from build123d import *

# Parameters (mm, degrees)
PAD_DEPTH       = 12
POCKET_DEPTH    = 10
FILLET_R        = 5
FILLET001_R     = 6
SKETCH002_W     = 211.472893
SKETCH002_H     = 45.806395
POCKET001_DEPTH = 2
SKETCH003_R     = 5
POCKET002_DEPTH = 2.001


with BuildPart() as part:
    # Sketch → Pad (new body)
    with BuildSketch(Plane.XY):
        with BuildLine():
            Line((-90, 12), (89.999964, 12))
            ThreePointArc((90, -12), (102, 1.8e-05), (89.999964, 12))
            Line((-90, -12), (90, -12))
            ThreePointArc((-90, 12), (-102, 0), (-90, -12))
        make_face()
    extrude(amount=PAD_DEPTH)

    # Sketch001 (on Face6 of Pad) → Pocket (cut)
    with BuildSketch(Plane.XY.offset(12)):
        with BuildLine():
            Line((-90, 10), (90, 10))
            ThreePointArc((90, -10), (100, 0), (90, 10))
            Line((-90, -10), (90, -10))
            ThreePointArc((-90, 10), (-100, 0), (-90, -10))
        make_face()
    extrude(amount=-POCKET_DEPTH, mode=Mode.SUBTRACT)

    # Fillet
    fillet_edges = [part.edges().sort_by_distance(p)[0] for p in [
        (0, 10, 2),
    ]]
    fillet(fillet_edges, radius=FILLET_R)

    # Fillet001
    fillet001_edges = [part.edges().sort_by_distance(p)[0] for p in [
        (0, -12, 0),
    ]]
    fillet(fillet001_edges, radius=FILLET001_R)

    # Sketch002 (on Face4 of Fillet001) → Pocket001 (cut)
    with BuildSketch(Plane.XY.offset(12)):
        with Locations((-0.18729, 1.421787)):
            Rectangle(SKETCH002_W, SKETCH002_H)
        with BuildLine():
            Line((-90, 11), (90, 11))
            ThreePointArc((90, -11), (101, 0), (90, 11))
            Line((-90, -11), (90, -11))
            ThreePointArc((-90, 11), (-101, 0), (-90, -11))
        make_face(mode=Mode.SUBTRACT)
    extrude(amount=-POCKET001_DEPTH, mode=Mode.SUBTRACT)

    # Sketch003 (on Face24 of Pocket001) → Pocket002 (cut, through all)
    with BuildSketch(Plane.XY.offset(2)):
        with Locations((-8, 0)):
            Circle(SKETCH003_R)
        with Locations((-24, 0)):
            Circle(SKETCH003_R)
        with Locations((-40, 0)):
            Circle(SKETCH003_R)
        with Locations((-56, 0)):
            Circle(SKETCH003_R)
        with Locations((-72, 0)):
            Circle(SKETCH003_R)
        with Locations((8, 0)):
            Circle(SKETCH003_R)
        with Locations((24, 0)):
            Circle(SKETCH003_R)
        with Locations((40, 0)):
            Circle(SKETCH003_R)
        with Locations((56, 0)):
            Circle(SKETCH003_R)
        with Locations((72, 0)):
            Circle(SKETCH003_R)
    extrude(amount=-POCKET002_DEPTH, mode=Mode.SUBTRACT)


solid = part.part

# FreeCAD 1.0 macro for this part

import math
import FreeCAD as App
import Part
import Sketcher
from FreeCAD import Vector


def edges_at(feature, points):
    """Names of the edges that pass closest to the given points."""
    edges = feature.Shape.Edges
    near = lambda p: min(range(len(edges)), key=lambda i: edges[i].distToShape(Part.Vertex(*p))[0])
    return sorted({f"Edge{near(p) + 1}" for p in points})


def add_polygon(sketch, points):
    """Adds a closed chain of lines whose ends are joined by coincident constraints."""
    first, n = sketch.GeometryCount, len(points)
    for a, b in zip(points, points[1:] + points[:1]):
        sketch.addGeometry(Part.LineSegment(App.Vector(*a, 0), App.Vector(*b, 0)), False)
    for i in range(n):
        sketch.addConstraint(Sketcher.Constraint("Coincident", first + i, 2, first + (i + 1) % n, 1))

doc = App.newDocument("Part")
body = doc.addObject("PartDesign::Body", "Body")

# Sketch on XY plane
sketch1 = body.newObject("Sketcher::SketchObject", "Sketch")
sketch1.AttachmentSupport = (doc.getObject("XY_Plane"), [""])
sketch1.MapMode = "FlatFace"
sketch1.addGeometry(Part.LineSegment(Vector(90, 12, 0), Vector(-90, 12, 0)), False)
sketch1.addGeometry(Part.ArcOfCircle(Part.Circle(Vector(-90, 0, 0), Vector(0, 0, 1), 12), math.radians(90), math.radians(270)), False)
sketch1.addGeometry(Part.LineSegment(Vector(-90, -12, 0), Vector(90, -12, 0)), False)
sketch1.addGeometry(Part.ArcOfCircle(Part.Circle(Vector(90, 0, 0), Vector(0, 0, 1), 12), math.radians(-90), math.radians(90)), False)
sketch1.addConstraint(Sketcher.Constraint("Tangent", 0, 2, 1, 1))
sketch1.addConstraint(Sketcher.Constraint("Tangent", 1, 2, 2, 1))
sketch1.addConstraint(Sketcher.Constraint("Tangent", 2, 2, 3, 1))
sketch1.addConstraint(Sketcher.Constraint("Coincident", 3, 2, 0, 1))
sketch1.addConstraint(Sketcher.Constraint("Horizontal", 0))
sketch1.addConstraint(Sketcher.Constraint("Horizontal", 2))
sketch1.addConstraint(Sketcher.Constraint("Symmetric", 1, 3, 3, 3, -1, 1))
sketch1.addConstraint(Sketcher.Constraint("Radius", 1, 12.0))
sketch1.addConstraint(Sketcher.Constraint("DistanceX", 2, 1, 2, 2, 180.0))
sketch1.addConstraint(Sketcher.Constraint("DistanceX", 0, 2, 0, 1, 179.999964))
pad1 = body.newObject("PartDesign::Pad", "Pad")
pad1.Profile = sketch1
pad1.Length = 12

# Sketch on XY plane
sketch2 = body.newObject("Sketcher::SketchObject", "Sketch001")
sketch2.AttachmentSupport = (doc.getObject("XY_Plane"), [""])
sketch2.MapMode = "FlatFace"
sketch2.AttachmentOffset = App.Placement(Vector(0, 0, 12), App.Rotation())
sketch2.addGeometry(Part.LineSegment(Vector(90, 10, 0), Vector(-90, 10, 0)), False)
sketch2.addGeometry(Part.ArcOfCircle(Part.Circle(Vector(-90, 0, 0), Vector(0, 0, 1), 10), math.radians(90), math.radians(270)), False)
sketch2.addGeometry(Part.LineSegment(Vector(-90, -10, 0), Vector(90, -10, 0)), False)
sketch2.addGeometry(Part.ArcOfCircle(Part.Circle(Vector(90, 0, 0), Vector(0, 0, 1), 10), math.radians(-90), math.radians(90)), False)
sketch2.addConstraint(Sketcher.Constraint("Tangent", 0, 2, 1, 1))
sketch2.addConstraint(Sketcher.Constraint("Tangent", 1, 2, 2, 1))
sketch2.addConstraint(Sketcher.Constraint("Tangent", 2, 2, 3, 1))
sketch2.addConstraint(Sketcher.Constraint("Tangent", 3, 2, 0, 1))
sketch2.addConstraint(Sketcher.Constraint("Horizontal", 0))
sketch2.addConstraint(Sketcher.Constraint("Horizontal", 2))
sketch2.addConstraint(Sketcher.Constraint("Symmetric", 1, 3, 3, 3, -1, 1))
sketch2.addConstraint(Sketcher.Constraint("Radius", 1, 10.0))
sketch2.addConstraint(Sketcher.Constraint("DistanceX", 0, 2, 0, 1, 180.0))
pocket1 = body.newObject("PartDesign::Pocket", "Pocket")
pocket1.Profile = sketch2
pocket1.Length = 10
doc.recompute()

fillet = body.newObject("PartDesign::Fillet", "Fillet")
fillet.Base = (pocket1, edges_at(pocket1, [(0, 10, 2)]))
fillet.Radius = 5
doc.recompute()

fillet2 = body.newObject("PartDesign::Fillet", "Fillet001")
fillet2.Base = (fillet, edges_at(fillet, [(0, -12, 0)]))
fillet2.Radius = 6

# Sketch on XY plane
sketch3 = body.newObject("Sketcher::SketchObject", "Sketch002")
sketch3.AttachmentSupport = (doc.getObject("XY_Plane"), [""])
sketch3.MapMode = "FlatFace"
sketch3.AttachmentOffset = App.Placement(Vector(0, 0, 12), App.Rotation())
add_polygon(sketch3, [(-106, 24), (-106, -21), (106, -21), (106, 24)])  # lines 0-3
sketch3.addGeometry(Part.ArcOfCircle(Part.Circle(Vector(-90, 0, 0), Vector(0, 0, 1), 11), math.radians(90), math.radians(270)), False)  # 4
sketch3.addGeometry(Part.LineSegment(Vector(-90, 11, 0), Vector(90, 11, 0)), False)  # 5
sketch3.addGeometry(Part.ArcOfCircle(Part.Circle(Vector(90, 0, 0), Vector(0, 0, 1), 11), math.radians(-90), math.radians(90)), False)  # 6
sketch3.addGeometry(Part.LineSegment(Vector(90, -11, 0), Vector(-90, -11, 0)), False)  # 7
sketch3.addConstraint(Sketcher.Constraint("Tangent", 4, 1, 5, 1))
sketch3.addConstraint(Sketcher.Constraint("Tangent", 5, 2, 6, 2))
sketch3.addConstraint(Sketcher.Constraint("Tangent", 6, 1, 7, 1))
sketch3.addConstraint(Sketcher.Constraint("Tangent", 7, 2, 4, 2))
sketch3.addConstraint(Sketcher.Constraint("Vertical", 0))
sketch3.addConstraint(Sketcher.Constraint("Horizontal", 1))
sketch3.addConstraint(Sketcher.Constraint("Vertical", 2))
sketch3.addConstraint(Sketcher.Constraint("Horizontal", 3))
sketch3.addConstraint(Sketcher.Constraint("Horizontal", 5))
sketch3.addConstraint(Sketcher.Constraint("Horizontal", 7))
sketch3.addConstraint(Sketcher.Constraint("Symmetric", 4, 3, 6, 3, -1, 1))
sketch3.addConstraint(Sketcher.Constraint("Radius", 4, 11.0))
sketch3.addConstraint(Sketcher.Constraint("DistanceX", 5, 1, 5, 2, 180.0))
sketch3.addConstraint(Sketcher.Constraint("DistanceX", 1, 1, 1, 2, 211.472893))
sketch3.addConstraint(Sketcher.Constraint("DistanceY", 0, 2, 0, 1, 45.806395))
sketch3.addConstraint(Sketcher.Constraint("DistanceY", 0, 2, -1, 1, 21.48141))
sketch3.addConstraint(Sketcher.Constraint("DistanceX", 0, 2, -1, 1, 105.923737))
pocket2 = body.newObject("PartDesign::Pocket", "Pocket001")
pocket2.Profile = sketch3
pocket2.Length = 2

# Sketch on XY plane
sketch4 = body.newObject("Sketcher::SketchObject", "Sketch003")
sketch4.AttachmentSupport = (doc.getObject("XY_Plane"), [""])
sketch4.MapMode = "FlatFace"
sketch4.AttachmentOffset = App.Placement(Vector(0, 0, 2), App.Rotation())
sketch4.addGeometry(Part.Circle(Vector(-8, 0, 0), Vector(0, 0, 1), 5), False)
sketch4.addGeometry(Part.Circle(Vector(-24, 0, 0), Vector(0, 0, 1), 5), False)
sketch4.addGeometry(Part.Circle(Vector(-40, 0, 0), Vector(0, 0, 1), 5), False)
sketch4.addGeometry(Part.Circle(Vector(-56, 0, 0), Vector(0, 0, 1), 5), False)
sketch4.addGeometry(Part.Circle(Vector(-72, 0, 0), Vector(0, 0, 1), 5), False)
sketch4.addGeometry(Part.Circle(Vector(8, 0, 0), Vector(0, 0, 1), 5), False)
sketch4.addGeometry(Part.Circle(Vector(24, 0, 0), Vector(0, 0, 1), 5), False)
sketch4.addGeometry(Part.Circle(Vector(40, 0, 0), Vector(0, 0, 1), 5), False)
sketch4.addGeometry(Part.Circle(Vector(56, 0, 0), Vector(0, 0, 1), 5), False)
sketch4.addGeometry(Part.Circle(Vector(72, 0, 0), Vector(0, 0, 1), 5), False)
sketch4.addConstraint(Sketcher.Constraint("Equal", 0, 1))
sketch4.addConstraint(Sketcher.Constraint("Equal", 1, 2))
sketch4.addConstraint(Sketcher.Constraint("Equal", 2, 3))
sketch4.addConstraint(Sketcher.Constraint("Equal", 3, 4))
sketch4.addConstraint(Sketcher.Constraint("Equal", 4, 5))
sketch4.addConstraint(Sketcher.Constraint("Equal", 5, 6))
sketch4.addConstraint(Sketcher.Constraint("Equal", 6, 7))
sketch4.addConstraint(Sketcher.Constraint("Equal", 7, 8))
sketch4.addConstraint(Sketcher.Constraint("Equal", 8, 9))
sketch4.addConstraint(Sketcher.Constraint("Symmetric", 0, 3, 5, 3, -1, 1))
sketch4.addConstraint(Sketcher.Constraint("Symmetric", 1, 3, 6, 3, -1, 1))
sketch4.addConstraint(Sketcher.Constraint("Symmetric", 2, 3, 7, 3, -1, 1))
sketch4.addConstraint(Sketcher.Constraint("Symmetric", 3, 3, 8, 3, -1, 1))
sketch4.addConstraint(Sketcher.Constraint("Symmetric", 4, 3, 9, 3, -1, 1))
sketch4.addConstraint(Sketcher.Constraint("PointOnObject", 0, 3, -1))
sketch4.addConstraint(Sketcher.Constraint("PointOnObject", 1, 3, -1))
sketch4.addConstraint(Sketcher.Constraint("PointOnObject", 2, 3, -1))
sketch4.addConstraint(Sketcher.Constraint("PointOnObject", 3, 3, -1))
sketch4.addConstraint(Sketcher.Constraint("PointOnObject", 4, 3, -1))
sketch4.addConstraint(Sketcher.Constraint("Diameter", 0, 10.0))
sketch4.addConstraint(Sketcher.Constraint("DistanceX", 0, 3, -1, 1, 8.0))
sketch4.addConstraint(Sketcher.Constraint("DistanceX", 1, 3, -1, 1, 24.0))
sketch4.addConstraint(Sketcher.Constraint("DistanceX", 2, 3, -1, 1, 40.0))
sketch4.addConstraint(Sketcher.Constraint("DistanceX", 3, 3, -1, 1, 56.0))
sketch4.addConstraint(Sketcher.Constraint("DistanceX", 4, 3, -1, 1, 72.0))
pocket3 = body.newObject("PartDesign::Pocket", "Pocket002")
pocket3.Profile = sketch4
pocket3.Type = "ThroughAll"

doc.recompute()
